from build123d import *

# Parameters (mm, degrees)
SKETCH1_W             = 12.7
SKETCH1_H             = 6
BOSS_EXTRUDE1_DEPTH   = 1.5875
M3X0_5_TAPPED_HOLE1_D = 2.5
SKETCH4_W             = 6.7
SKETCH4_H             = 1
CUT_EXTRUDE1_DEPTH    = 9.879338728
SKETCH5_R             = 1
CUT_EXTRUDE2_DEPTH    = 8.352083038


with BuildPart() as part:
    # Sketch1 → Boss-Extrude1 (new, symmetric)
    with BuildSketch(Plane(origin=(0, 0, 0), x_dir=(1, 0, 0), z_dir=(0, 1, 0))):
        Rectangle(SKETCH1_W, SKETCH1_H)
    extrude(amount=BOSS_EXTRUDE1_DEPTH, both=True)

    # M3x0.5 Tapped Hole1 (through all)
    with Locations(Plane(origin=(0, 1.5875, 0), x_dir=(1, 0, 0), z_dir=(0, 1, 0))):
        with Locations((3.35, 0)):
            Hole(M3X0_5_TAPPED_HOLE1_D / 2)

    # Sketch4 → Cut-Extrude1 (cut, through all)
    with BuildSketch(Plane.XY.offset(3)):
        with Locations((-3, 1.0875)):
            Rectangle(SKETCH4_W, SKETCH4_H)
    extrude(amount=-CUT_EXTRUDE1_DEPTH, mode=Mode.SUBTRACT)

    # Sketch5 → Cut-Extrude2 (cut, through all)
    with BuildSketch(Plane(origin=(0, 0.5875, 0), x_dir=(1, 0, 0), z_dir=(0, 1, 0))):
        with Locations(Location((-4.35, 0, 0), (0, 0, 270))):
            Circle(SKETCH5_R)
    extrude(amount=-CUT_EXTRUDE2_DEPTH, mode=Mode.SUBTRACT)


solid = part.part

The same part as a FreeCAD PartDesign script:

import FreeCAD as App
import Part
import Sketcher
from FreeCAD import Vector
Q = App.Units.Quantity

doc = App.newDocument("Part")
body = doc.addObject("PartDesign::Body", "Body")

# Sketch on XZ plane
sketch1 = body.newObject("Sketcher::SketchObject", "Sketch")
sketch1.AttachmentSupport = (doc.getObject("XZ_Plane"), [""])
sketch1.MapMode = "FlatFace"
sketch1.addGeometry([
    Part.LineSegment(Vector(-6.35, -3, 0), Vector(-6.35, 3, 0)),
    Part.LineSegment(Vector(-6.35, 3, 0), Vector(6.35, 3, 0)),
    Part.LineSegment(Vector(6.35, 3, 0), Vector(6.35, -3, 0)),
    Part.LineSegment(Vector(6.35, -3, 0), Vector(-6.35, -3, 0)),
], False)
sketch1.addConstraint([
    Sketcher.Constraint("Coincident", 0, 2, 1, 1),
    Sketcher.Constraint("Coincident", 1, 2, 2, 1),
    Sketcher.Constraint("Coincident", 2, 2, 3, 1),
    Sketcher.Constraint("Coincident", 3, 2, 0, 1),
    Sketcher.Constraint("Vertical", 0),
    Sketcher.Constraint("Horizontal", 1),
    Sketcher.Constraint("Vertical", 2),
    Sketcher.Constraint("Horizontal", 3),
    Sketcher.Constraint("Symmetric", 0, 2, 2, 2, -1, 1),
    Sketcher.Constraint("DistanceY", 0, 1, 0, 2, Q("6 mm")),
    Sketcher.Constraint("DistanceX", 1, 1, 1, 2, Q("12.7 mm")),
])
pad1 = body.newObject("PartDesign::Pad", "Pad")
pad1.Profile = sketch1
pad1.Length = 3.175
pad1.Midplane = True

# Sketch on XZ plane
sketch2 = body.newObject("Sketcher::SketchObject", "Sketch001")
sketch2.AttachmentSupport = (doc.getObject("XZ_Plane"), [""])
sketch2.MapMode = "FlatFace"
sketch2.AttachmentOffset = App.Placement(Vector(0, 0, -1.5875), App.Rotation())
sketch2.addGeometry(Part.Circle(Vector(3.35, 0, 0), Vector(0, 0, 1), 1.25), False)
sketch2.addConstraint([
    Sketcher.Constraint("PointOnObject", 0, 3, -1),
    Sketcher.Constraint("Diameter", 0, Q("2.5 mm")),
    Sketcher.Constraint("DistanceX", -1, 1, 0, 3, Q("3.35 mm")),
])
doc.recompute()
hole = body.newObject("PartDesign::Hole", "Hole")
hole.Profile = sketch2
hole.ThreadType = "None"
hole.Diameter = 2.5
hole.DepthType = "ThroughAll"
hole.Reversed = True

# Sketch on XY plane
sketch3 = body.newObject("Sketcher::SketchObject", "Sketch002")
sketch3.AttachmentSupport = (doc.getObject("XY_Plane"), [""])
sketch3.MapMode = "FlatFace"
sketch3.AttachmentOffset = App.Placement(Vector(0, 0, 3), App.Rotation())
sketch3.addGeometry([
    Part.LineSegment(Vector(-6.35, 1.5875, 0), Vector(-6.35, 0.5875, 0)),
    Part.LineSegment(Vector(-6.35, 0.5875, 0), Vector(0.35, 0.5875, 0)),
    Part.LineSegment(Vector(0.35, 0.5875, 0), Vector(0.35, 1.5875, 0)),
    Part.LineSegment(Vector(0.35, 1.5875, 0), Vector(-6.35, 1.5875, 0)),
], False)
sketch3.addConstraint([
    Sketcher.Constraint("Coincident", 0, 2, 1, 1),
    Sketcher.Constraint("Coincident", 1, 2, 2, 1),
    Sketcher.Constraint("Coincident", 2, 2, 3, 1),
    Sketcher.Constraint("Coincident", 3, 2, 0, 1),
    Sketcher.Constraint("Vertical", 0),
    Sketcher.Constraint("Horizontal", 1),
    Sketcher.Constraint("Vertical", 2),
    Sketcher.Constraint("Horizontal", 3),
    Sketcher.Constraint("DistanceY", 0, 2, 0, 1, Q("1 mm")),
    Sketcher.Constraint("DistanceX", 1, 1, 1, 2, Q("6.7 mm")),
    Sketcher.Constraint("DistanceX", 0, 2, -1, 1, Q("6.35 mm")),
    Sketcher.Constraint("DistanceY", -1, 1, 0, 2, Q("0.5875 mm")),
])
pocket1 = body.newObject("PartDesign::Pocket", "Pocket")
pocket1.Profile = sketch3
pocket1.Type = "ThroughAll"

# Sketch on XZ plane
sketch4 = body.newObject("Sketcher::SketchObject", "Sketch003")
sketch4.AttachmentSupport = (doc.getObject("XZ_Plane"), [""])
sketch4.MapMode = "FlatFace"
sketch4.AttachmentOffset = App.Placement(Vector(0, 0, -0.5875), App.Rotation())
sketch4.addGeometry(Part.Circle(Vector(-4.35, 0, 0), Vector(0, 0, 1), 1), False)
sketch4.addConstraint([
    Sketcher.Constraint("PointOnObject", 0, 3, -1),
    Sketcher.Constraint("Diameter", 0, Q("2 mm")),
    Sketcher.Constraint("DistanceX", 0, 3, -1, 1, Q("4.35 mm")),
])
pocket2 = body.newObject("PartDesign::Pocket", "Pocket001")
pocket2.Profile = sketch4
pocket2.Type = "ThroughAll"
pocket2.Reversed = True

doc.recompute()
